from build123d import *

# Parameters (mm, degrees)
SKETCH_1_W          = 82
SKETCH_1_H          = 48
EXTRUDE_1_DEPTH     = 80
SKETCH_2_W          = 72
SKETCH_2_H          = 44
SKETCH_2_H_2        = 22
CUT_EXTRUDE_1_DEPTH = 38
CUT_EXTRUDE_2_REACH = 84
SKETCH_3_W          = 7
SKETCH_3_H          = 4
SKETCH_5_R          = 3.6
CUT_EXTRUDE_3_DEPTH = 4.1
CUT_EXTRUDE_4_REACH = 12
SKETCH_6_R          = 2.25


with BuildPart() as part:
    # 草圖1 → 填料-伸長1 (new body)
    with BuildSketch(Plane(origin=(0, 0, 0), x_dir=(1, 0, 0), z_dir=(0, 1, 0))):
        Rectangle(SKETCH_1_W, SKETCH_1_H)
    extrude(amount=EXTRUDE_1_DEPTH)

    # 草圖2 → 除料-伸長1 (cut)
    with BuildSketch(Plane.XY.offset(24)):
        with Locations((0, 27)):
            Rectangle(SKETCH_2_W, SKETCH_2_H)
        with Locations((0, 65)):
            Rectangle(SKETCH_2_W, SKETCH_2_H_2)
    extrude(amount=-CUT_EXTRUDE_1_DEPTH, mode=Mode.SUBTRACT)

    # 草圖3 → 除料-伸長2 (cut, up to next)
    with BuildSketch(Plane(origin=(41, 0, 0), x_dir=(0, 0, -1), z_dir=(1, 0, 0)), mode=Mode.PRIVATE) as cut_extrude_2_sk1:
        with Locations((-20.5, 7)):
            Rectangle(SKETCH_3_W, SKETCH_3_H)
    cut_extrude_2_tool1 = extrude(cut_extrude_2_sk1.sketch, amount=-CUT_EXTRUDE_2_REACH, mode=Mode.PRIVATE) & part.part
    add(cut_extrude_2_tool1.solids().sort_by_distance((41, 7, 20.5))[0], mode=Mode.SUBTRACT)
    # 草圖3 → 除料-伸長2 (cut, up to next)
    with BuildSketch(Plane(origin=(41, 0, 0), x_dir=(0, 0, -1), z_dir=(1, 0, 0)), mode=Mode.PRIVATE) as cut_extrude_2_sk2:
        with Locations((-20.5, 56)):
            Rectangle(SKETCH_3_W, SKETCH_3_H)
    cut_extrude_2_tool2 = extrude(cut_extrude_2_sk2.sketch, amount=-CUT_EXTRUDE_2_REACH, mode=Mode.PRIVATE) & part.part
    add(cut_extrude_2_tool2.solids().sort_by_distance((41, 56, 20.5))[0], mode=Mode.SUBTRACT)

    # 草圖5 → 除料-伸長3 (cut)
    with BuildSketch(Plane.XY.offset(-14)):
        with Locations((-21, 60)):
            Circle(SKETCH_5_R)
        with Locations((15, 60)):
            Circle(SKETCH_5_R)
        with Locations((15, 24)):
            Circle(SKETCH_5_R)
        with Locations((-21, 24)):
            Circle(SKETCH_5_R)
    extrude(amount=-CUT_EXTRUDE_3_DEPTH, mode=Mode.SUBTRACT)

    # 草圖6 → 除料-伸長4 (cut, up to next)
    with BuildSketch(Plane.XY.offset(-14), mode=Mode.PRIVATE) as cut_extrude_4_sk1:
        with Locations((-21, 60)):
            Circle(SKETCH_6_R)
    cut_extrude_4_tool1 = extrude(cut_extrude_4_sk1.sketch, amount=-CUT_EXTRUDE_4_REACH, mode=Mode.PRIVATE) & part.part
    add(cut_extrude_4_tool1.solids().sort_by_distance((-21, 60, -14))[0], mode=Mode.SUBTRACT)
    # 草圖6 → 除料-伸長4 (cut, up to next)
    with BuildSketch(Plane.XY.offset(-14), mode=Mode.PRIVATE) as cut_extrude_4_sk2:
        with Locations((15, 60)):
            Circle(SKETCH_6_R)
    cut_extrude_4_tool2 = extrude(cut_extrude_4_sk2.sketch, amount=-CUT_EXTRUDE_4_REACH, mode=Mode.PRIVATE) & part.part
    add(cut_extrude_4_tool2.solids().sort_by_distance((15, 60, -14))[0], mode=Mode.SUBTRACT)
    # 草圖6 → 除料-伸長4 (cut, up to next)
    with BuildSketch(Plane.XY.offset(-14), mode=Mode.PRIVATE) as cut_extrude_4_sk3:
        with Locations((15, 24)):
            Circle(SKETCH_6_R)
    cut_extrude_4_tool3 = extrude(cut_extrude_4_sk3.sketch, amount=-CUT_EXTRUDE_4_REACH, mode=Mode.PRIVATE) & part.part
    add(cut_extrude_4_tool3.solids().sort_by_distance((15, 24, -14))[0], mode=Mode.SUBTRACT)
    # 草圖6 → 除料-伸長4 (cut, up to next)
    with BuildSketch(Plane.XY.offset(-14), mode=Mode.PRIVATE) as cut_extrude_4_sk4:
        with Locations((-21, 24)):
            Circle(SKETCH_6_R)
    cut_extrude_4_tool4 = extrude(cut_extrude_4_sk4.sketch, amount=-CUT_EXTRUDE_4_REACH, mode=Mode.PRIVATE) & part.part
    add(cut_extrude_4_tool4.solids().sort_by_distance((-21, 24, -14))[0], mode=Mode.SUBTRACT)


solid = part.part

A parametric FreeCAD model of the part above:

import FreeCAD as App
import Part
import Sketcher
Q = App.Units.Quantity


def add_polygon(sketch, points):
    """Adds a closed chain of lines whose ends are joined by coincident constraints."""
    first, n = sketch.GeometryCount, len(points)
    for a, b in zip(points, points[1:] + points[:1]):
        sketch.addGeometry(Part.LineSegment(App.Vector(*a, 0), App.Vector(*b, 0)), False)
    for i in range(n):
        sketch.addConstraint(Sketcher.Constraint("Coincident", first + i, 2, first + (i + 1) % n, 1))

doc = App.newDocument("Part")
body = doc.addObject("PartDesign::Body", "Body")

# Sketch on XZ plane
sketch1 = body.newObject("Sketcher::SketchObject", "Sketch")
sketch1.AttachmentSupport = (doc.getObject("XZ_Plane"), [""])
sketch1.MapMode = "FlatFace"
add_polygon(sketch1, [(-41, -24), (-41, 24), (41, 24), (41, -24)])  # lines 0-3
sketch1.addConstraint(Sketcher.Constraint("Vertical", 0))
sketch1.addConstraint(Sketcher.Constraint("Horizontal", 1))
sketch1.addConstraint(Sketcher.Constraint("Vertical", 2))
sketch1.addConstraint(Sketcher.Constraint("Horizontal", 3))
sketch1.addConstraint(Sketcher.Constraint("Symmetric", 0, 2, 2, 2, -1, 1))
sketch1.addConstraint(Sketcher.Constraint("DistanceX", 1, 1, 1, 2, Q("82 mm")))
sketch1.addConstraint(Sketcher.Constraint("DistanceY", 0, 1, 0, 2, Q("48 mm")))
pad1 = body.newObject("PartDesign::Pad", "Pad")
pad1.Profile = sketch1
pad1.Length = 80
pad1.Reversed = True

# Sketch on XY plane
sketch2 = body.newObject("Sketcher::SketchObject", "Sketch001")
sketch2.AttachmentSupport = (doc.getObject("XY_Plane"), [""])
sketch2.MapMode = "FlatFace"
sketch2.AttachmentOffset = App.Placement(App.Vector(0, 0, 24), App.Rotation())
add_polygon(sketch2, [(-36, 49), (-36, 5), (36, 5), (36, 49)])  # lines 0-3
add_polygon(sketch2, [(-36, 76), (-36, 54), (36, 54), (36, 76)])  # lines 4-7
sketch2.addConstraint(Sketcher.Constraint("Vertical", 0))
sketch2.addConstraint(Sketcher.Constraint("Horizontal", 1))
sketch2.addConstraint(Sketcher.Constraint("Vertical", 2))
sketch2.addConstraint(Sketcher.Constraint("Horizontal", 3))
sketch2.addConstraint(Sketcher.Constraint("Vertical", 4))
sketch2.addConstraint(Sketcher.Constraint("Horizontal", 5))
sketch2.addConstraint(Sketcher.Constraint("Vertical", 6))
sketch2.addConstraint(Sketcher.Constraint("Horizontal", 7))
sketch2.addConstraint(Sketcher.Constraint("Vertical", 3, 2, 4, 2))
sketch2.addConstraint(Sketcher.Constraint("Vertical", 2, 2, 5, 2))
sketch2.addConstraint(Sketcher.Constraint("DistanceX", 1, 1, 1, 2, Q("72 mm")))
sketch2.addConstraint(Sketcher.Constraint("DistanceY", 0, 2, 0, 1, Q("44 mm")))
sketch2.addConstraint(Sketcher.Constraint("DistanceY", 4, 2, 4, 1, Q("22 mm")))
sketch2.addConstraint(Sketcher.Constraint("DistanceX", 0, 2, -1, 1, Q("36 mm")))
sketch2.addConstraint(Sketcher.Constraint("DistanceY", -1, 1, 0, 2, Q("5 mm")))
sketch2.addConstraint(Sketcher.Constraint("DistanceY", -1, 1, 4, 2, Q("54 mm")))
pocket1 = body.newObject("PartDesign::Pocket", "Pocket")
pocket1.Profile = sketch2
pocket1.Length = 38

# Sketch on YZ plane
sketch3 = body.newObject("Sketcher::SketchObject", "Sketch002")
sketch3.AttachmentSupport = (doc.getObject("YZ_Plane"), [""])
sketch3.MapMode = "FlatFace"
sketch3.AttachmentOffset = App.Placement(App.Vector(0, 0, 41), App.Rotation())
add_polygon(sketch3, [(9, 24), (5, 24), (5, 17), (9, 17)])  # lines 0-3
sketch3.addConstraint(Sketcher.Constraint("Horizontal", 0))
sketch3.addConstraint(Sketcher.Constraint("Vertical", 1))
sketch3.addConstraint(Sketcher.Constraint("Horizontal", 2))
sketch3.addConstraint(Sketcher.Constraint("Vertical", 3))
sketch3.addConstraint(Sketcher.Constraint("DistanceX", 0, 2, 0, 1, Q("4 mm")))
sketch3.addConstraint(Sketcher.Constraint("DistanceY", 1, 2, 1, 1, Q("7 mm")))
sketch3.addConstraint(Sketcher.Constraint("DistanceX", -1, 1, 0, 2, Q("5 mm")))
sketch3.addConstraint(Sketcher.Constraint("DistanceY", -1, 1, 0, 2, Q("24 mm")))
pocket2 = body.newObject("PartDesign::Pocket", "Pocket001")
pocket2.Profile = sketch3
pocket2.Type = "UpToFirst"

# Sketch on YZ plane
sketch4 = body.newObject("Sketcher::SketchObject", "Sketch003")
sketch4.AttachmentSupport = (doc.getObject("YZ_Plane"), [""])
sketch4.MapMode = "FlatFace"
sketch4.AttachmentOffset = App.Placement(App.Vector(0, 0, 41), App.Rotation())
add_polygon(sketch4, [(58, 24), (54, 24), (54, 17), (58, 17)])  # lines 0-3
sketch4.addConstraint(Sketcher.Constraint("Horizontal", 0))
sketch4.addConstraint(Sketcher.Constraint("Vertical", 1))
sketch4.addConstraint(Sketcher.Constraint("Horizontal", 2))
sketch4.addConstraint(Sketcher.Constraint("Vertical", 3))
sketch4.addConstraint(Sketcher.Constraint("DistanceX", 0, 2, 0, 1, Q("4 mm")))
sketch4.addConstraint(Sketcher.Constraint("DistanceY", 1, 2, 1, 1, Q("7 mm")))
sketch4.addConstraint(Sketcher.Constraint("DistanceX", -1, 1, 0, 2, Q("54 mm")))
sketch4.addConstraint(Sketcher.Constraint("DistanceY", -1, 1, 0, 2, Q("24 mm")))
pocket3 = body.newObject("PartDesign::Pocket", "Pocket002")
pocket3.Profile = sketch4
pocket3.Type = "UpToFirst"

# Sketch on XY plane
sketch5 = body.newObject("Sketcher::SketchObject", "Sketch004")
sketch5.AttachmentSupport = (doc.getObject("XY_Plane"), [""])
sketch5.MapMode = "FlatFace"
sketch5.AttachmentOffset = App.Placement(App.Vector(0, 0, -14), App.Rotation())
sketch5.addGeometry(Part.Circle(App.Vector(-21, 60, 0), App.Vector(0, 0, 1), 3.6), False)
sketch5.addGeometry(Part.Circle(App.Vector(15, 60, 0), App.Vector(0, 0, 1), 3.6), False)
sketch5.addGeometry(Part.Circle(App.Vector(15, 24, 0), App.Vector(0, 0, 1), 3.6), False)
sketch5.addGeometry(Part.Circle(App.Vector(-21, 24, 0), App.Vector(0, 0, 1), 3.6), False)
sketch5.addConstraint(Sketcher.Constraint("Equal", 0, 1))
sketch5.addConstraint(Sketcher.Constraint("Equal", 1, 2))
sketch5.addConstraint(Sketcher.Constraint("Equal", 2, 3))
sketch5.addConstraint(Sketcher.Constraint("Horizontal", 0, 3, 1, 3))
sketch5.addConstraint(Sketcher.Constraint("Horizontal", 2, 3, 3, 3))
sketch5.addConstraint(Sketcher.Constraint("Vertical", 1, 3, 2, 3))
sketch5.addConstraint(Sketcher.Constraint("Vertical", 0, 3, 3, 3))
sketch5.addConstraint(Sketcher.Constraint("Diameter", 0, Q("7.2 mm")))
sketch5.addConstraint(Sketcher.Constraint("DistanceX", 0, 3, -1, 1, Q("21 mm")))
sketch5.addConstraint(Sketcher.Constraint("DistanceY", -1, 1, 0, 3, Q("60 mm")))
sketch5.addConstraint(Sketcher.Constraint("DistanceX", -1, 1, 1, 3, Q("15 mm")))
sketch5.addConstraint(Sketcher.Constraint("DistanceY", -1, 1, 2, 3, Q("24 mm")))
pocket4 = body.newObject("PartDesign::Pocket", "Pocket003")
pocket4.Profile = sketch5
pocket4.Length = 4.1

# Sketch on XY plane
sketch6 = body.newObject("Sketcher::SketchObject", "Sketch005")
sketch6.AttachmentSupport = (doc.getObject("XY_Plane"), [""])
sketch6.MapMode = "FlatFace"
sketch6.AttachmentOffset = App.Placement(App.Vector(0, 0, -14), App.Rotation())
sketch6.addGeometry(Part.Circle(App.Vector(-21, 60, 0), App.Vector(0, 0, 1), 2.2), False)
sketch6.addConstraint(Sketcher.Constraint("Diameter", 0, Q("4.5 mm")))
sketch6.addConstraint(Sketcher.Constraint("DistanceX", 0, 3, -1, 1, Q("21 mm")))
sketch6.addConstraint(Sketcher.Constraint("DistanceY", -1, 1, 0, 3, Q("60 mm")))
pocket5 = body.newObject("PartDesign::Pocket", "Pocket004")
pocket5.Profile = sketch6
pocket5.Length = 10

# Sketch on XY plane
sketch7 = body.newObject("Sketcher::SketchObject", "Sketch006")
sketch7.AttachmentSupport = (doc.getObject("XY_Plane"), [""])
sketch7.MapMode = "FlatFace"
sketch7.AttachmentOffset = App.Placement(App.Vector(0, 0, -14), App.Rotation())
sketch7.addGeometry(Part.Circle(App.Vector(15, 60, 0), App.Vector(0, 0, 1), 2.2), False)
sketch7.addConstraint(Sketcher.Constraint("Diameter", 0, Q("4.5 mm")))
sketch7.addConstraint(Sketcher.Constraint("DistanceX", -1, 1, 0, 3, Q("15 mm")))
sketch7.addConstraint(Sketcher.Constraint("DistanceY", -1, 1, 0, 3, Q("60 mm")))
pocket6 = body.newObject("PartDesign::Pocket", "Pocket005")
pocket6.Profile = sketch7
pocket6.Length = 10

# Sketch on XY plane
sketch8 = body.newObject("Sketcher::SketchObject", "Sketch007")
sketch8.AttachmentSupport = (doc.getObject("XY_Plane"), [""])
sketch8.MapMode = "FlatFace"
sketch8.AttachmentOffset = App.Placement(App.Vector(0, 0, -14), App.Rotation())
sketch8.addGeometry(Part.Circle(App.Vector(15, 24, 0), App.Vector(0, 0, 1), 2.2), False)
sketch8.addConstraint(Sketcher.Constraint("Diameter", 0, Q("4.5 mm")))
sketch8.addConstraint(Sketcher.Constraint("DistanceX", -1, 1, 0, 3, Q("15 mm")))
sketch8.addConstraint(Sketcher.Constraint("DistanceY", -1, 1, 0, 3, Q("24 mm")))
pocket7 = body.newObject("PartDesign::Pocket", "Pocket006")
pocket7.Profile = sketch8
pocket7.Length = 10

# Sketch on XY plane
sketch9 = body.newObject("Sketcher::SketchObject", "Sketch008")
sketch9.AttachmentSupport = (doc.getObject("XY_Plane"), [""])
sketch9.MapMode = "FlatFace"
sketch9.AttachmentOffset = App.Placement(App.Vector(0, 0, -14), App.Rotation())
sketch9.addGeometry(Part.Circle(App.Vector(-21, 24, 0), App.Vector(0, 0, 1), 2.2), False)
sketch9.addConstraint(Sketcher.Constraint("Diameter", 0, Q("4.5 mm")))
sketch9.addConstraint(Sketcher.Constraint("DistanceX", 0, 3, -1, 1, Q("21 mm")))
sketch9.addConstraint(Sketcher.Constraint("DistanceY", -1, 1, 0, 3, Q("24 mm")))
pocket8 = body.newObject("PartDesign::Pocket", "Pocket007")
pocket8.Profile = sketch9
pocket8.Length = 10

doc.recompute()
